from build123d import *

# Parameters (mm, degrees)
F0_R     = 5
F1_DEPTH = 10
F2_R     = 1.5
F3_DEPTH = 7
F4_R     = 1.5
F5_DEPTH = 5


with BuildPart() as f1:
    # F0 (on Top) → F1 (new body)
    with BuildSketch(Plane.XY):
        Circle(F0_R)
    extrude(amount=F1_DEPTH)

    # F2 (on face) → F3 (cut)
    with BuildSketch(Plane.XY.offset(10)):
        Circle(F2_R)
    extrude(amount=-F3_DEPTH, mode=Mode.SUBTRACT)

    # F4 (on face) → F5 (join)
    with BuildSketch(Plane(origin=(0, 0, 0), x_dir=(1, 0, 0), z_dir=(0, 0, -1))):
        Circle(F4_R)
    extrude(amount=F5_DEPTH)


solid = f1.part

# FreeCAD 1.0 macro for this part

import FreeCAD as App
import Part
import Sketcher
from FreeCAD import Vector

doc = App.newDocument("Part")
body = doc.addObject("PartDesign::Body", "Body")

# Sketch on XY plane
sketch1 = doc.addObject("Sketcher::SketchObject", "Sketch")
body.addObject(sketch1)
sketch1.AttachmentSupport = (doc.XY_Plane, [""])
sketch1.MapMode = "FlatFace"
sketch1.addGeometry(Part.Circle(Vector(0, 0, 0), Vector(0, 0, 1), 5), False)
sketch1.addConstraint(Sketcher.Constraint("Coincident", 0, 3, -1, 1))
sketch1.addConstraint(Sketcher.Constraint("Diameter", 0, 10.0))
pad1 = doc.addObject("PartDesign::Pad", "Pad")
body.addObject(pad1)
pad1.Profile = sketch1
pad1.Length = 10

# Sketch on XY plane
sketch2 = doc.addObject("Sketcher::SketchObject", "Sketch001")
body.addObject(sketch2)
sketch2.AttachmentSupport = (doc.XY_Plane, [""])
sketch2.MapMode = "FlatFace"
sketch2.AttachmentOffset = App.Placement(Vector(0, 0, 10), App.Rotation())
sketch2.addGeometry(Part.Circle(Vector(0, 0, 0), Vector(0, 0, 1), 1.5), False)
sketch2.addConstraint(Sketcher.Constraint("Coincident", 0, 3, -1, 1))
sketch2.addConstraint(Sketcher.Constraint("Diameter", 0, 3.0))
pocket1 = doc.addObject("PartDesign::Pocket", "Pocket")
body.addObject(pocket1)
pocket1.Profile = sketch2
pocket1.Length = 7

# Sketch on XY plane
sketch3 = doc.addObject("Sketcher::SketchObject", "Sketch002")
body.addObject(sketch3)
sketch3.AttachmentSupport = (doc.XY_Plane, [""])
sketch3.MapMode = "FlatFace"
sketch3.addGeometry(Part.Circle(Vector(0, 0, 0), Vector(0, 0, 1), 1.5), False)
sketch3.addConstraint(Sketcher.Constraint("Coincident", 0, 3, -1, 1))
sketch3.addConstraint(Sketcher.Constraint("Diameter", 0, 3.0))
pad2 = doc.addObject("PartDesign::Pad", "Pad001")
body.addObject(pad2)
pad2.Profile = sketch3
pad2.Length = 5
pad2.Reversed = True

doc.recompute()
